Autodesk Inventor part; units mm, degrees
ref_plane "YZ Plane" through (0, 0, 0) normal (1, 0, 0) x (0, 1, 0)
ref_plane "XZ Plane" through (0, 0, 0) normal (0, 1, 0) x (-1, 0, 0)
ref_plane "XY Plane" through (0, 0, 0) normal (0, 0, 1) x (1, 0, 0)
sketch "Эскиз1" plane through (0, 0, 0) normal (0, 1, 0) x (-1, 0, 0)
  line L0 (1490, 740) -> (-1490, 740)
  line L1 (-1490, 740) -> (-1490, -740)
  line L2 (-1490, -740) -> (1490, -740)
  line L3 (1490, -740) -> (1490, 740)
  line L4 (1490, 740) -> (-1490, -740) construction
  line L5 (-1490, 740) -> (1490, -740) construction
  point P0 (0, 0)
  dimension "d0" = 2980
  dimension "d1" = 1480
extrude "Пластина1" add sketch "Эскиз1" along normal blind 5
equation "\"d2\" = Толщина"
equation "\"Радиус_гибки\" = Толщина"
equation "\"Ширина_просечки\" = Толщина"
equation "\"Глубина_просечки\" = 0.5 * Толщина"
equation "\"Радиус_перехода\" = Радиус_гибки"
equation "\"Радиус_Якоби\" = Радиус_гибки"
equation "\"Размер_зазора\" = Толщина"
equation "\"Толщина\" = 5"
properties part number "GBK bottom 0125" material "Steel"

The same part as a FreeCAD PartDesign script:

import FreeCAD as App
import Part
import Sketcher
Q = App.Units.Quantity


def add_polygon(sketch, points):
    """Adds a closed chain of lines whose ends are joined by coincident constraints."""
    first, n = sketch.GeometryCount, len(points)
    for a, b in zip(points, points[1:] + points[:1]):
        sketch.addGeometry(Part.LineSegment(App.Vector(*a, 0), App.Vector(*b, 0)), False)
    for i in range(n):
        sketch.addConstraint(Sketcher.Constraint("Coincident", first + i, 2, first + (i + 1) % n, 1))

doc = App.newDocument("Part")
params = doc.addObject("Spreadsheet::Sheet", "Params")
for row, (alias, value) in enumerate([
    ("sketch1_width", "2980 mm"),
    ("sketch1_height", "1480 mm"),
    ("pad1_length", "5 mm"),
], start=1):
    params.set(f"A{row}", alias)
    params.set(f"B{row}", "=" + value)
    params.setAlias(f"B{row}", alias)

body = doc.addObject("PartDesign::Body", "Body")

# Sketch on XZ plane
sketch1 = body.newObject("Sketcher::SketchObject", "Sketch")
sketch1.AttachmentSupport = (doc.getObject("XZ_Plane"), [""])
sketch1.MapMode = "FlatFace"
add_polygon(sketch1, [(-1490, -740), (-1490, 740), (1490, 740), (1490, -740)])  # lines 0-3
sketch1.addConstraint([
    Sketcher.Constraint("Vertical", 0),
    Sketcher.Constraint("Horizontal", 1),
    Sketcher.Constraint("Vertical", 2),
    Sketcher.Constraint("Horizontal", 3),
    Sketcher.Constraint("Symmetric", 0, 2, 2, 2, -1, 1),
    Sketcher.Constraint("DistanceX", 1, 1, 1, 2, Q("2980 mm")),
    Sketcher.Constraint("DistanceY", 0, 1, 0, 2, Q("1480 mm")),
])
sketch1.setExpression("Constraints[9]", "Params.sketch1_width")
sketch1.setExpression("Constraints[10]", "Params.sketch1_height")
pad1 = body.newObject("PartDesign::Pad", "Pad")
pad1.Profile = sketch1
pad1.setExpression("Length", "Params.pad1_length")
pad1.Reversed = True

doc.recompute()
